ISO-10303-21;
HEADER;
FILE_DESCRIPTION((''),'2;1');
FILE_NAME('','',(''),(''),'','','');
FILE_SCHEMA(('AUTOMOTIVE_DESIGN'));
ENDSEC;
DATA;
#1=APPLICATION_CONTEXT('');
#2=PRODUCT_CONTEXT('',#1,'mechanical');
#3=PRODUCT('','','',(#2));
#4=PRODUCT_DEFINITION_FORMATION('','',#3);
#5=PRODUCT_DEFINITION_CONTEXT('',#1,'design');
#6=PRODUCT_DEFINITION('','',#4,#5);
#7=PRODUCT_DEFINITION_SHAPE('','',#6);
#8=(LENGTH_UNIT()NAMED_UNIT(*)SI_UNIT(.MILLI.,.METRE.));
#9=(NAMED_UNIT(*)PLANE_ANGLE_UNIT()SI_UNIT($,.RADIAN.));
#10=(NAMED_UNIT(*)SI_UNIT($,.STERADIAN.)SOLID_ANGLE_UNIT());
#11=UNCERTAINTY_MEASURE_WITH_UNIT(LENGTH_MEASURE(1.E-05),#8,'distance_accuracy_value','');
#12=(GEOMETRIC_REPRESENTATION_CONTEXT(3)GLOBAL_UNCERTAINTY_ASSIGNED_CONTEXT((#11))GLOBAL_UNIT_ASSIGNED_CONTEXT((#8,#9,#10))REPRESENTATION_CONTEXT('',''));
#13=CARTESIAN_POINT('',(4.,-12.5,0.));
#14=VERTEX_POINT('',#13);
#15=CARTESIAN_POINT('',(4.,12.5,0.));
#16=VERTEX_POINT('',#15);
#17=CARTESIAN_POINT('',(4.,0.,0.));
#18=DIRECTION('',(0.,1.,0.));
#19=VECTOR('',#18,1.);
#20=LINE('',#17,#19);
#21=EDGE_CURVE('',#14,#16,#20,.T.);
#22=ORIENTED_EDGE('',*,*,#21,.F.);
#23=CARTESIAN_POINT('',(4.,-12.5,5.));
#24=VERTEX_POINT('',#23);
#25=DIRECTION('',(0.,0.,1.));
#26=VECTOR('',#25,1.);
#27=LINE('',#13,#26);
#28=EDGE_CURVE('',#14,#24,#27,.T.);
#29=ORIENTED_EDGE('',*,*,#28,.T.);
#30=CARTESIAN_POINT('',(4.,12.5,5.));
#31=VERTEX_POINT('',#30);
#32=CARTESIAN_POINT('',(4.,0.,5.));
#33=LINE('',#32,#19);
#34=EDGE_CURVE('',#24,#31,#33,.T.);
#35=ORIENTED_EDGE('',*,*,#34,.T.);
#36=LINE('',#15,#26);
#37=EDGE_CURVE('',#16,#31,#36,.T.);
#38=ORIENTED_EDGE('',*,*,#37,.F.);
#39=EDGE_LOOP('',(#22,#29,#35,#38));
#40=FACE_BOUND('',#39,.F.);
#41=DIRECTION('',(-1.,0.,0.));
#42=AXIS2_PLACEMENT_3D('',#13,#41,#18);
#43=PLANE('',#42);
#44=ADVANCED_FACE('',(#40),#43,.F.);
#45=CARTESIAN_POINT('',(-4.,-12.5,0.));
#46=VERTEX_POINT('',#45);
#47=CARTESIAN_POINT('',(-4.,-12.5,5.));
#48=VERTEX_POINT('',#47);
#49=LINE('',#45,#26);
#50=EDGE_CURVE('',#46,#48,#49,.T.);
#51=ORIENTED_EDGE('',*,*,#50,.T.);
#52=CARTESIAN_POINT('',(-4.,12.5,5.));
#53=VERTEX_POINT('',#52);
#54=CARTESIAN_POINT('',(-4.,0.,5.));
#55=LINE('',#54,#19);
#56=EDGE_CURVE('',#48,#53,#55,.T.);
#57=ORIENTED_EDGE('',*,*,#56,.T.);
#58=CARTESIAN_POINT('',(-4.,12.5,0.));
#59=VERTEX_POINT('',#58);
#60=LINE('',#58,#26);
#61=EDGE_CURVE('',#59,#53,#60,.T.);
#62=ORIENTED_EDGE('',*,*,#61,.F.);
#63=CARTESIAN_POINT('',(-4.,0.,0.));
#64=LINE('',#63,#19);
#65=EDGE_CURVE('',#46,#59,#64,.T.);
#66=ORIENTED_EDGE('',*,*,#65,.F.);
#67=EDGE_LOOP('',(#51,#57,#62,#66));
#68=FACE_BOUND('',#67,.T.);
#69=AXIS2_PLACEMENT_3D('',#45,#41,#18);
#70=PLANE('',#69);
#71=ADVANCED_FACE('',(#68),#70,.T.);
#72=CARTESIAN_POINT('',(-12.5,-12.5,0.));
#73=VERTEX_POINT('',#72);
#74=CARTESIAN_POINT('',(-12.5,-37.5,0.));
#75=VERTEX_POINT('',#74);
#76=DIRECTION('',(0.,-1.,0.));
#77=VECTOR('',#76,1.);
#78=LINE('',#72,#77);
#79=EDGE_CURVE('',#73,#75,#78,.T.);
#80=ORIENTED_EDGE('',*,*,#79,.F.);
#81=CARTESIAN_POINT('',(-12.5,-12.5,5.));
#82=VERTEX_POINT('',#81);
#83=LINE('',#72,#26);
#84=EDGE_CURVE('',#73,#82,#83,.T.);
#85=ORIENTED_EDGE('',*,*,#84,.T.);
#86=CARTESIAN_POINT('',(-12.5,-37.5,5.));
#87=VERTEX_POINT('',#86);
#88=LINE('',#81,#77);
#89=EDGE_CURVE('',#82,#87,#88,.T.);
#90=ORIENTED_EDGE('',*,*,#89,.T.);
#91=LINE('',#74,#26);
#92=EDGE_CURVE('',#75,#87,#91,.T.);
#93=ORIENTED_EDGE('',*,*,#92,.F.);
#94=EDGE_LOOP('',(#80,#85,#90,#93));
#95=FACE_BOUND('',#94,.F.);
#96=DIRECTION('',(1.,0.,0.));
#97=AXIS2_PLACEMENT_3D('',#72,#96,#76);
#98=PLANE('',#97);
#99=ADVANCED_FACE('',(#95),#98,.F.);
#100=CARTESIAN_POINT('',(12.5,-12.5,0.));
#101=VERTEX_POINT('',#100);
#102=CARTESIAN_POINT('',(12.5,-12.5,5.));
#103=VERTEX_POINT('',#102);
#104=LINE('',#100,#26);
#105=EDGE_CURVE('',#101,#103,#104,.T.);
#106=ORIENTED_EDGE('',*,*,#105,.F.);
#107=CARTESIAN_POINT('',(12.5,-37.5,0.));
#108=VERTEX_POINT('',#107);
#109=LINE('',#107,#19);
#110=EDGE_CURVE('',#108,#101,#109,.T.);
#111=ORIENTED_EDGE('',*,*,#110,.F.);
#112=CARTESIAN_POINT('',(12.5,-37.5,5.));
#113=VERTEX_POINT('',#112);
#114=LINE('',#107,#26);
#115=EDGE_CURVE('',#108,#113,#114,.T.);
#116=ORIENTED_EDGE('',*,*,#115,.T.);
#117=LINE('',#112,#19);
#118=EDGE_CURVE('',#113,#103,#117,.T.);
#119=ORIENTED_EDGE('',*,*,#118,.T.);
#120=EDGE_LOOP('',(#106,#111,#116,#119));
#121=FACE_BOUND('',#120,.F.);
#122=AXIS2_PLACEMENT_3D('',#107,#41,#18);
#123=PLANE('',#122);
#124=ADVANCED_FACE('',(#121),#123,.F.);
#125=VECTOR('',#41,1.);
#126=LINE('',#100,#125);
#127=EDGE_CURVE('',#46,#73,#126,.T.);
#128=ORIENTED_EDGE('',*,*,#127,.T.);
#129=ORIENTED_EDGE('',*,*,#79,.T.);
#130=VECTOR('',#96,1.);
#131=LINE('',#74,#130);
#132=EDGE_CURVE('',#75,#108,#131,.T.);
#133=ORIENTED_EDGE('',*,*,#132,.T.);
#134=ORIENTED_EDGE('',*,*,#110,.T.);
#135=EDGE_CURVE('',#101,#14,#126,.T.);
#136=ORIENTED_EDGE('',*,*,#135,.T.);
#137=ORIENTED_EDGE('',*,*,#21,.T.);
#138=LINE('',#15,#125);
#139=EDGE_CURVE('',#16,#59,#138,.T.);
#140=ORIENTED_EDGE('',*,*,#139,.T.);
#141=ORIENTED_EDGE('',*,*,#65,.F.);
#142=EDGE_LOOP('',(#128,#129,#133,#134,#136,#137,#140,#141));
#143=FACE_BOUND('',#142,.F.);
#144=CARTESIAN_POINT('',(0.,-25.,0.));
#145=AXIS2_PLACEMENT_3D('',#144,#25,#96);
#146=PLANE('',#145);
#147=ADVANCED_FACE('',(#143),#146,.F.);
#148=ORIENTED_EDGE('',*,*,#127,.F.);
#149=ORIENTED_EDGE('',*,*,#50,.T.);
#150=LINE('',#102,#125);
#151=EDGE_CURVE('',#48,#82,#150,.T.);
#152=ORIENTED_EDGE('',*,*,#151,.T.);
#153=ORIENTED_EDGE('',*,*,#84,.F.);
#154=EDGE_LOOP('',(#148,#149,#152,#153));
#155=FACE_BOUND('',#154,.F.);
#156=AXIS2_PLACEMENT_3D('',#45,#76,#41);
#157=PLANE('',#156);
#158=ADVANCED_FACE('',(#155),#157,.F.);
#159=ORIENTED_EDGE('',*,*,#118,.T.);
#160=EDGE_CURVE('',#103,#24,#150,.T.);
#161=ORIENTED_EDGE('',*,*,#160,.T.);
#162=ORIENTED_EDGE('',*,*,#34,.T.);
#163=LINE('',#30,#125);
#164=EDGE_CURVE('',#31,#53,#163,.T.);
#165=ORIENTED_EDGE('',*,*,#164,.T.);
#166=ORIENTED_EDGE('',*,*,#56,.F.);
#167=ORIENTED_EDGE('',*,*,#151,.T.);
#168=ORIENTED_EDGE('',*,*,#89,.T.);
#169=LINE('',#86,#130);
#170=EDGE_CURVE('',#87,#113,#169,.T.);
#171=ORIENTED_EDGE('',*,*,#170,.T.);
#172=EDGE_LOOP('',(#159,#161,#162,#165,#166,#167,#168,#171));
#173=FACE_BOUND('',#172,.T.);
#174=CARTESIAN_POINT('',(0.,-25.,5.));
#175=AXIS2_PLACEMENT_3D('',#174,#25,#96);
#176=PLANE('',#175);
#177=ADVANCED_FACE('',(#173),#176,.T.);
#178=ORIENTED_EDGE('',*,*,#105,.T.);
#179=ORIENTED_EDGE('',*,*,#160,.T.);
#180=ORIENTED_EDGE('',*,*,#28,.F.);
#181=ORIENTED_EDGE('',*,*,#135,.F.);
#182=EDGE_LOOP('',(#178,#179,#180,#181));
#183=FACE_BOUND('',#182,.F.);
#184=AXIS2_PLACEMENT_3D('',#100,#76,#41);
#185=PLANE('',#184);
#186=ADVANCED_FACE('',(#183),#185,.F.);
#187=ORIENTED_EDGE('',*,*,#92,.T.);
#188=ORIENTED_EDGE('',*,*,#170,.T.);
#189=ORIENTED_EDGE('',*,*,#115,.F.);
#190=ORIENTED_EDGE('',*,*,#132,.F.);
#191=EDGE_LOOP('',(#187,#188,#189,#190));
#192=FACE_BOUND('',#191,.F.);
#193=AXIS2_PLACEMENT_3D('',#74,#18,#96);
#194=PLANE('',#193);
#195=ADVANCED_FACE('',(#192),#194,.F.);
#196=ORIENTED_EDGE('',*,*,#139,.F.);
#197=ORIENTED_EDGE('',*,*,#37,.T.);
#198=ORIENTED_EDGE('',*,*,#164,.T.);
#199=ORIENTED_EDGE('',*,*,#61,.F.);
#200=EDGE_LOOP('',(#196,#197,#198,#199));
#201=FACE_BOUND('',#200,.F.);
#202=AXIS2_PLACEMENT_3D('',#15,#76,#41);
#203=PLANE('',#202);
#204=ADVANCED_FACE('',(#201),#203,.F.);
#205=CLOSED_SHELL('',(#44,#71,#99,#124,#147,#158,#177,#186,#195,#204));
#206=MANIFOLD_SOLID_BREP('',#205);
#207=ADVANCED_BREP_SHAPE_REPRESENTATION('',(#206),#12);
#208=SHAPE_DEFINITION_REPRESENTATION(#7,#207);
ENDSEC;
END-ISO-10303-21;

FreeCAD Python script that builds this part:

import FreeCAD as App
import Part
import Sketcher

V = App.Vector
Q = App.Units.Quantity

doc = App.newDocument("Part")
body = doc.addObject("PartDesign::Body", "Body")

# Sketch on XY plane
sketch1 = doc.addObject("Sketcher::SketchObject", "Sketch")
body.addObject(sketch1)
sketch1.AttachmentSupport = (doc.XY_Plane, [""])
sketch1.MapMode = "FlatFace"
sketch1.addGeometry([
    Part.LineSegment(V(12, -12, 0), V(4, -12, 0)),  # 0
    Part.LineSegment(V(4, -12, 0), V(4, 12, 0)),  # 1
    Part.LineSegment(V(4, 12, 0), V(-4, 12, 0)),  # 2
    Part.LineSegment(V(-4, 12, 0), V(-4, -12, 0)),  # 3
    Part.LineSegment(V(-4, -12, 0), V(-12, -12, 0)),  # 4
    Part.LineSegment(V(-12, -12, 0), V(-12, -38, 0)),  # 5
    Part.LineSegment(V(-12, -38, 0), V(12, -38, 0)),  # 6
    Part.LineSegment(V(12, -38, 0), V(12, -12, 0)),  # 7
], False)
sketch1.addConstraint([
    Sketcher.Constraint("Coincident", 0, 2, 1, 1),
    Sketcher.Constraint("Coincident", 1, 2, 2, 1),
    Sketcher.Constraint("Coincident", 2, 2, 3, 1),
    Sketcher.Constraint("Coincident", 3, 2, 4, 1),
    Sketcher.Constraint("Coincident", 4, 2, 5, 1),
    Sketcher.Constraint("Coincident", 5, 2, 6, 1),
    Sketcher.Constraint("Coincident", 6, 2, 7, 1),
    Sketcher.Constraint("Coincident", 7, 2, 0, 1),
    Sketcher.Constraint("Horizontal", 0),
    Sketcher.Constraint("Vertical", 1),
    Sketcher.Constraint("Horizontal", 2),
    Sketcher.Constraint("Vertical", 3),
    Sketcher.Constraint("Horizontal", 4),
    Sketcher.Constraint("Vertical", 5),
    Sketcher.Constraint("Horizontal", 6),
    Sketcher.Constraint("Vertical", 7),
    Sketcher.Constraint("Symmetric", 0, 2, 2, 2, -1, 1),
    Sketcher.Constraint("Symmetric", 4, 2, 7, 2, -2),
    Sketcher.Constraint("Equal", 6, 1),
    Sketcher.Constraint("Equal", 3, 5),
    Sketcher.Constraint("DistanceX", 2, 2, 2, 1, Q("8 mm")),
    Sketcher.Constraint("DistanceX", 6, 1, 6, 2, Q("25 mm")),
])
pad1 = doc.addObject("PartDesign::Pad", "Pad")
body.addObject(pad1)
pad1.Profile = sketch1
pad1.Length = 5

doc.recompute()
